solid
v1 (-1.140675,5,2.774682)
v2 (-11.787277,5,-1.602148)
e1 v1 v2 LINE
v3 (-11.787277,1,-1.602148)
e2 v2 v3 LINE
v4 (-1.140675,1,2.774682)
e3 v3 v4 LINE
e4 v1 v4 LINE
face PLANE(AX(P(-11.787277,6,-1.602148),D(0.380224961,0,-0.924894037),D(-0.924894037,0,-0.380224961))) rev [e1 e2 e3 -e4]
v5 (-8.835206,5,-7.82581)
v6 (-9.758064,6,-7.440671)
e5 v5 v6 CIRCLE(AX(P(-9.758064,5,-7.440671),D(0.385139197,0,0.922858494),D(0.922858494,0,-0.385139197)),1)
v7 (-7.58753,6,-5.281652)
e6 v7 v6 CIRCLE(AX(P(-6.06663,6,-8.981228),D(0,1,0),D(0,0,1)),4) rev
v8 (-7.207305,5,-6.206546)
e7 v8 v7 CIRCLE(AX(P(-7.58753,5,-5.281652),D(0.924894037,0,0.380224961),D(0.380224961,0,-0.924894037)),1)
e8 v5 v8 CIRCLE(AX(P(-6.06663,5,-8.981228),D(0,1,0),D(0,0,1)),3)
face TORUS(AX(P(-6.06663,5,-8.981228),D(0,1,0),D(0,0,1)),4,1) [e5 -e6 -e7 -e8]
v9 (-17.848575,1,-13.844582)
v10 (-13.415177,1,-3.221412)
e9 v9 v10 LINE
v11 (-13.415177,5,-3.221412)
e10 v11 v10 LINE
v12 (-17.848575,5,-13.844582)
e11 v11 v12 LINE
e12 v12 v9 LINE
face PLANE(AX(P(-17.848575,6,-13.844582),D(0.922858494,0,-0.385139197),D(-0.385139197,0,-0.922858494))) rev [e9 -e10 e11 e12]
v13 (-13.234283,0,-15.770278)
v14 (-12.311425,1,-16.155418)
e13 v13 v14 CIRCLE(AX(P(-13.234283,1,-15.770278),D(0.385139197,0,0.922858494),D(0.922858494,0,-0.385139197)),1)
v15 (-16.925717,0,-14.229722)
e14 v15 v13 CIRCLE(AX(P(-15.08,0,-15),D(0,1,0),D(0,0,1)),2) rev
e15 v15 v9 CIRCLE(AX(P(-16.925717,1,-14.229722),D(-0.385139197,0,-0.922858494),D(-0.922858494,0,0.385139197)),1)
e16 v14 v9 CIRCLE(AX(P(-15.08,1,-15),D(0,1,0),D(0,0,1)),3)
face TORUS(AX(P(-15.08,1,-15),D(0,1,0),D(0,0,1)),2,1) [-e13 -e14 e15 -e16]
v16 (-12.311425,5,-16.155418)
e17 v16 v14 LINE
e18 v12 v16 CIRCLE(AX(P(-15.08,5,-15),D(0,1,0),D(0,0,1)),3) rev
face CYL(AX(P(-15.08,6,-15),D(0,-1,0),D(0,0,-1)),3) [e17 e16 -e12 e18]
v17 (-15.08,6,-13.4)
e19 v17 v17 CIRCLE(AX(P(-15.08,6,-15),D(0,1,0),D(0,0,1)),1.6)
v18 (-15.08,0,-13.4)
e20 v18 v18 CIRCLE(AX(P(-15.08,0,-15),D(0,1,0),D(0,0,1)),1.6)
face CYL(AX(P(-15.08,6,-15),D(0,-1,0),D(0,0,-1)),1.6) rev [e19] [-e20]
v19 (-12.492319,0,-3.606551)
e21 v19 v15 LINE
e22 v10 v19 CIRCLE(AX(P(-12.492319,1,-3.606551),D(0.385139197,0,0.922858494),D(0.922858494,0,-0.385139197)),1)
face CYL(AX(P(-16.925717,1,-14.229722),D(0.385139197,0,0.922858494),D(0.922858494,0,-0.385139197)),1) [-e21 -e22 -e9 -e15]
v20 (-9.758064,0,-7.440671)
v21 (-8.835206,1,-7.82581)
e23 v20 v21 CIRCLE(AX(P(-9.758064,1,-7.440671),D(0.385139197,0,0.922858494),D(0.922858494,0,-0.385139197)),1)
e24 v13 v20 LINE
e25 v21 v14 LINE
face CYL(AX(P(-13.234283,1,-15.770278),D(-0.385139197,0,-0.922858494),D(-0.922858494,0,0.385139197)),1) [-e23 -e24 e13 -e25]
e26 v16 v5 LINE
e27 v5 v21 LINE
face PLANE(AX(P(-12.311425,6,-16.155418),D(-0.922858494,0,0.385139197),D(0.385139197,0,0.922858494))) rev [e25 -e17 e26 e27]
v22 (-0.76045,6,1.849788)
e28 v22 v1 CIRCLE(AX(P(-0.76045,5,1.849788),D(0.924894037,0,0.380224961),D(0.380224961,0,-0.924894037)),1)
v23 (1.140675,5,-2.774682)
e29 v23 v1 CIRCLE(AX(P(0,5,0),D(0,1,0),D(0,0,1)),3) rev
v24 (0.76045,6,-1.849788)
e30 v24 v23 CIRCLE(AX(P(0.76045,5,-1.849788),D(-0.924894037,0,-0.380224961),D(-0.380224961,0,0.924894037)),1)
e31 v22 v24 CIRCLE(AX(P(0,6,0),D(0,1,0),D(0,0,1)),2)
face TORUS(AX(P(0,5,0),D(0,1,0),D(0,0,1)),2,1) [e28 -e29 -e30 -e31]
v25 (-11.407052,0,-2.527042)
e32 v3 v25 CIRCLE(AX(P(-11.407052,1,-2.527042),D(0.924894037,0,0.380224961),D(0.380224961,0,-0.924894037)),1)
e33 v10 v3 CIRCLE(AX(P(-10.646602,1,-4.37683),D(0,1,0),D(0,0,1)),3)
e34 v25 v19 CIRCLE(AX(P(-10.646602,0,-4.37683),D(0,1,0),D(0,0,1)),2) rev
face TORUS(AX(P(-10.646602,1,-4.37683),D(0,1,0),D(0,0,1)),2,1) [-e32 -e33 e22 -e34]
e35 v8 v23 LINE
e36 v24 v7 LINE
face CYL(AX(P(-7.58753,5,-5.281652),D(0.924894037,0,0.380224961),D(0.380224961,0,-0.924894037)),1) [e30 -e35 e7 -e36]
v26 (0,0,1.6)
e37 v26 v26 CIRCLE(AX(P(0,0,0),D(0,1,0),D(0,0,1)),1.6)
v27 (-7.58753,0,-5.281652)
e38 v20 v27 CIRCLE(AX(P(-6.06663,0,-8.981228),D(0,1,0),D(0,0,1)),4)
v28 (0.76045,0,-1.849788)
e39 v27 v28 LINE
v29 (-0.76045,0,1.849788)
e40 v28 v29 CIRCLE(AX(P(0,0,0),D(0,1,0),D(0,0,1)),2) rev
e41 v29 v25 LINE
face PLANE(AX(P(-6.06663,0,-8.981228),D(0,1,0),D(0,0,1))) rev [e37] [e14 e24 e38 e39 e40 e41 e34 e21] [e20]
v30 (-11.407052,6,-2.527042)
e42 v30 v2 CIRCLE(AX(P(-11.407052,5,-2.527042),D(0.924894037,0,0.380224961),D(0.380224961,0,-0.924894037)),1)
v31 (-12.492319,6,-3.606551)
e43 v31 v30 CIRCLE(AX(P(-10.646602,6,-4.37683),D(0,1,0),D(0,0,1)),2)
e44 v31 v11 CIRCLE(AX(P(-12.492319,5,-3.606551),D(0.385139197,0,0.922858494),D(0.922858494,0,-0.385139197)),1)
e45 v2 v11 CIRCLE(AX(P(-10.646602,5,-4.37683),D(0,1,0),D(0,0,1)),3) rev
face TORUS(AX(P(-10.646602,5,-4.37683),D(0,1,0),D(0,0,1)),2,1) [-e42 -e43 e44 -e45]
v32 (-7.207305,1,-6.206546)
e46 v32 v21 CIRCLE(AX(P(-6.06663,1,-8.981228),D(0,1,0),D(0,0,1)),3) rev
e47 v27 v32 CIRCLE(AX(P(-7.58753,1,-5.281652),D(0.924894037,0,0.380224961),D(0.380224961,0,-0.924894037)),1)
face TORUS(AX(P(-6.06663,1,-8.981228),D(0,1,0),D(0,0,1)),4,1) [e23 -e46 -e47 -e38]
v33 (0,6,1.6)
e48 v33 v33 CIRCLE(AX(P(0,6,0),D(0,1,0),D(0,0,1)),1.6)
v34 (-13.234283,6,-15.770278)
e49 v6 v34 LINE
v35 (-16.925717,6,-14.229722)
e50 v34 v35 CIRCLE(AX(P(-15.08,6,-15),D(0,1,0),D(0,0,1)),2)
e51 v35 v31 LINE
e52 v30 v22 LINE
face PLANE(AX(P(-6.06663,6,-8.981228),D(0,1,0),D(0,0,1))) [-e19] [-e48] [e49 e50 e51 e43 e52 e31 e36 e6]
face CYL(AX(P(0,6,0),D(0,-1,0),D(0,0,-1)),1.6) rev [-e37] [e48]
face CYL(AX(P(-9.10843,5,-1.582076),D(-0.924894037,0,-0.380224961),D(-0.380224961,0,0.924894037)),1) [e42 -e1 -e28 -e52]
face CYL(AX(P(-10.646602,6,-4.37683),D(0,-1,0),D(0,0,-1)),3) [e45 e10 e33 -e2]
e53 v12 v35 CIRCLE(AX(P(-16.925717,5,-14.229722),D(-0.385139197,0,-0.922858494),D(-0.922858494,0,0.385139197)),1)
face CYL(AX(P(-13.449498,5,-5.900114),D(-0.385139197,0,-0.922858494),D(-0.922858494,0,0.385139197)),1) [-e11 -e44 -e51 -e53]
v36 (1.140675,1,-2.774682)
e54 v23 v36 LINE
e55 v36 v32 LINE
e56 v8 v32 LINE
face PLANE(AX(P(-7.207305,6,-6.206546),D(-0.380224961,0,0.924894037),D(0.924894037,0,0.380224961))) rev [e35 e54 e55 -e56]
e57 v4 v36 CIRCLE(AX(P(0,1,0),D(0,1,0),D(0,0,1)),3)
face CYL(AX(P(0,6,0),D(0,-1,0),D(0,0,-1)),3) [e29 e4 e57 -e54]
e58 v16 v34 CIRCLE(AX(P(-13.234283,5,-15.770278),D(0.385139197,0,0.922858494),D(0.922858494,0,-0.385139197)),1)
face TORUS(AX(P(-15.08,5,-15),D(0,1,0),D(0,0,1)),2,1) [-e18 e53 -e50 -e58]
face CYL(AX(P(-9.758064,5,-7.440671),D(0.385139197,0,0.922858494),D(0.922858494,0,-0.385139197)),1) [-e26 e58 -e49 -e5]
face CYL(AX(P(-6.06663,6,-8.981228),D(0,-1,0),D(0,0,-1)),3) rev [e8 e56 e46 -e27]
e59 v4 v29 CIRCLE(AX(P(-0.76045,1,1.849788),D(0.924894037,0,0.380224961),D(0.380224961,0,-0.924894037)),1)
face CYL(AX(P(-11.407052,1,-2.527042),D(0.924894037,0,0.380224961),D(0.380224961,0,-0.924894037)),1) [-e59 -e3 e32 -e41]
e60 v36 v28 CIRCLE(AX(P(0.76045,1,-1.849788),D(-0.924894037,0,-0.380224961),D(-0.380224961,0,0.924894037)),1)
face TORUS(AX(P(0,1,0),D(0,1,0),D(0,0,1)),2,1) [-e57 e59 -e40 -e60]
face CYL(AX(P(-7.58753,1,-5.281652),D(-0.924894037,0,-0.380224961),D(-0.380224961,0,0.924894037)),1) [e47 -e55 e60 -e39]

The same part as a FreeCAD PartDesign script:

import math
import FreeCAD as App
import Part
import Sketcher


def edges_at(feature, points):
    """Names of the edges that pass closest to the given points."""
    edges = feature.Shape.Edges
    near = lambda p: min(range(len(edges)), key=lambda i: edges[i].distToShape(Part.Vertex(*p))[0])
    return sorted({f"Edge{near(p) + 1}" for p in points})

doc = App.newDocument("Part")
params = doc.addObject("Spreadsheet::Sheet", "Params")
for row, (alias, value) in enumerate([
    ("sketch1_radius", "3 mm"),
    ("sketch1_diameter", "3.2 mm"),
    ("pad1_length", "6 mm"),
    ("fillet_radius", "1 mm"),
], start=1):
    params.set(f"A{row}", alias)
    params.set(f"B{row}", "=" + value)
    params.setAlias(f"B{row}", alias)

body = doc.addObject("PartDesign::Body", "Body")

# Sketch on XZ plane
sketch1 = body.newObject("Sketcher::SketchObject", "Sketch")
sketch1.AttachmentSupport = (doc.getObject("XZ_Plane"), [""])
sketch1.MapMode = "FlatFace"
sketch1.addGeometry([
    Part.LineSegment(App.Vector(-17.8, -13.8, 0), App.Vector(-13.4, -3.2, 0)),  # 0
    Part.ArcOfCircle(Part.Circle(App.Vector(-10.6, -4.4, 0), App.Vector(0, 0, 1), 3), math.radians(112), math.radians(157)),  # 1
    Part.LineSegment(App.Vector(-11.8, -1.6, 0), App.Vector(-1.1, 2.8, 0)),  # 2
    Part.ArcOfCircle(Part.Circle(App.Vector(0, 0, 0), App.Vector(0, 0, 1), 3), math.radians(-68), math.radians(112)),  # 3
    Part.LineSegment(App.Vector(1.1, -2.8, 0), App.Vector(-7.2, -6.2, 0)),  # 4
    Part.ArcOfCircle(Part.Circle(App.Vector(-6.1, -9, 0), App.Vector(0, 0, 1), 3), math.radians(112), math.radians(157)),  # 5
    Part.LineSegment(App.Vector(-8.8, -7.8, 0), App.Vector(-12.3, -16.2, 0)),  # 6
    Part.ArcOfCircle(Part.Circle(App.Vector(-15.1, -15, 0), App.Vector(0, 0, 1), 3), math.radians(157), math.radians(337)),  # 7
    Part.Circle(App.Vector(0, 0, 0), App.Vector(0, 0, 1), 1.6),  # 8
    Part.Circle(App.Vector(-15.1, -15, 0), App.Vector(0, 0, 1), 1.6),  # 9
], False)
sketch1.addConstraint([
    Sketcher.Constraint("Tangent", 0, 2, 1, 2),
    Sketcher.Constraint("Tangent", 1, 1, 2, 1),
    Sketcher.Constraint("Tangent", 2, 2, 3, 2),
    Sketcher.Constraint("Tangent", 3, 1, 4, 1),
    Sketcher.Constraint("Tangent", 4, 2, 5, 1),
    Sketcher.Constraint("Tangent", 5, 2, 6, 1),
    Sketcher.Constraint("Tangent", 6, 2, 7, 2),
    Sketcher.Constraint("Tangent", 7, 1, 0, 1),
    Sketcher.Constraint("Coincident", 3, 3, -1, 1),
    Sketcher.Constraint("Coincident", 8, 3, -1, 1),
    Sketcher.Constraint("Coincident", 9, 3, 7, 3),
    Sketcher.Constraint("Equal", 1, 3),
    Sketcher.Constraint("Equal", 3, 5),
    Sketcher.Constraint("Equal", 5, 7),
    Sketcher.Constraint("Equal", 8, 9),
    Sketcher.Constraint("Parallel", 2, 4),
    Sketcher.Constraint("Parallel", 0, 6),
    Sketcher.Constraint("Equal", 0, 2),
    Sketcher.Constraint("Radius", 1, 3.0),
    Sketcher.Constraint("Diameter", 8, 3.2),
    Sketcher.Constraint("DistanceY", 7, 3, -1, 1, 15.0),
    Sketcher.Constraint("DistanceX", 7, 3, -1, 1, 15.08),
    Sketcher.Constraint("DistanceX", 1, 3, -1, 1, 10.646602),
])
sketch1.setExpression("Constraints[18]", "Params.sketch1_radius")
sketch1.setExpression("Constraints[19]", "Params.sketch1_diameter")
pad1 = body.newObject("PartDesign::Pad", "Pad")
pad1.Profile = sketch1
pad1.setExpression("Length", "Params.pad1_length")
pad1.Reversed = True
doc.recompute()

fillet = body.newObject("PartDesign::Fillet", "Fillet")
fillet.Base = (pad1, edges_at(pad1, [
    (-15.632, 0, -8.533),
    (-16.235, 0, -17.769),
    (-10.573, 0, -11.991),
    (-8.182, 0, -6.854),
    (-16.235, 6, -17.769),
    (-15.632, 6, -8.533),
    (-12.762, 6, -2.25),
    (-6.464, 6, 0.586),
    (2.775, 6, 1.141),
    (-3.033, 6, -4.491),
    (-8.182, 6, -6.854),
    (-3.033, 0, -4.491),
    (-10.573, 6, -11.991),
    (2.775, 0, 1.141),
    (-6.464, 0, 0.586),
    (-12.762, 0, -2.25),
]))
fillet.setExpression("Radius", "Params.fillet_radius")

doc.recompute()
